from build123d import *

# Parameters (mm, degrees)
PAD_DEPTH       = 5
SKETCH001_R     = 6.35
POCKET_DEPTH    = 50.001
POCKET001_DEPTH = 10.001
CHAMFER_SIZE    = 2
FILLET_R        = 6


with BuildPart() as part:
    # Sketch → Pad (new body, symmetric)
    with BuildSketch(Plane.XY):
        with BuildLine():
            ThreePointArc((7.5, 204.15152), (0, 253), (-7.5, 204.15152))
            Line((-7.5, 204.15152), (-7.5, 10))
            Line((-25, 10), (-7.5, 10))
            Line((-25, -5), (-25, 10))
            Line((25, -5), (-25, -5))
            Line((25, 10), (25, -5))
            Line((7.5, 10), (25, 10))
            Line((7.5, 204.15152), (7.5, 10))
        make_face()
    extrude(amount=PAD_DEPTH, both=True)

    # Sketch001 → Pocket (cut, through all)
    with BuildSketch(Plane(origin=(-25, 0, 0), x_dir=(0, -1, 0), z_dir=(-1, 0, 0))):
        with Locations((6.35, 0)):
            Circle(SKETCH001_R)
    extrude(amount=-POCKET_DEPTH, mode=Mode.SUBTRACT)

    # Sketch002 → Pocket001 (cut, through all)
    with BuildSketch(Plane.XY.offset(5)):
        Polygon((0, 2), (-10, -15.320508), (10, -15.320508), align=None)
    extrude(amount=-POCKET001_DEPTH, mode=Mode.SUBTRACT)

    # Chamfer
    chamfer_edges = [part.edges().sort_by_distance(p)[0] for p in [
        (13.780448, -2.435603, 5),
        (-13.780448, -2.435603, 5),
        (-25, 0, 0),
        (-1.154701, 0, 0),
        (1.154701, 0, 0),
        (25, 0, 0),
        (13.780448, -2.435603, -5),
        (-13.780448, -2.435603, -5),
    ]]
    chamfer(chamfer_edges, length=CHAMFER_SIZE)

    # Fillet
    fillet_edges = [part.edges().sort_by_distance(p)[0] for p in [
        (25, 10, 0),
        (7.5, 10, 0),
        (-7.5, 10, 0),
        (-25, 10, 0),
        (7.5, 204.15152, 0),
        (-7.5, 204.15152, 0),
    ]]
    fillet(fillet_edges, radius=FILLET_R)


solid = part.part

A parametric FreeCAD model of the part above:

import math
import FreeCAD as App
import Part
import Sketcher
from FreeCAD import Vector
Q = App.Units.Quantity


def edges_at(feature, points):
    """Names of the edges that pass closest to the given points."""
    edges = feature.Shape.Edges
    near = lambda p: min(range(len(edges)), key=lambda i: edges[i].distToShape(Part.Vertex(*p))[0])
    return sorted({f"Edge{near(p) + 1}" for p in points})

doc = App.newDocument("Part")
params = doc.addObject("Spreadsheet::Sheet", "Params")
for row, (alias, value) in enumerate([
    ("sketch1_radius", "25 mm"),
    ("sketch1_width", "50 mm"),
    ("sketch1_height", "15 mm"),
    ("sketch1_width2", "17.5 mm"),
    ("pad1_length", "10 mm"),
    ("sketch2_diameter", "12.7 mm"),
    ("sketch3_width", "20 mm"),
    ("chamfer_size", "2 mm"),
    ("fillet_radius", "6 mm"),
], start=1):
    params.set(f"A{row}", alias)
    params.set(f"B{row}", "=" + value)
    params.setAlias(f"B{row}", alias)

body = doc.addObject("PartDesign::Body", "Body")

# Sketch on XY plane
sketch1 = body.newObject("Sketcher::SketchObject", "Sketch")
sketch1.AttachmentSupport = (doc.getObject("XY_Plane"), [""])
sketch1.MapMode = "FlatFace"
sketch1.addGeometry([
    Part.ArcOfCircle(Part.Circle(Vector(0, 228, 0), Vector(0, 0, 1), 25), math.radians(-72.542397), math.radians(252.542397)),  # 0
    Part.LineSegment(Vector(-7.5, 204.15152, 0), Vector(-7.5, 10, 0)),  # 1
    Part.LineSegment(Vector(-7.5, 10, 0), Vector(-25, 10, 0)),  # 2
    Part.LineSegment(Vector(-25, 10, 0), Vector(-25, -5, 0)),  # 3
    Part.LineSegment(Vector(-25, -5, 0), Vector(25, -5, 0)),  # 4
    Part.LineSegment(Vector(25, -5, 0), Vector(25, 10, 0)),  # 5
    Part.LineSegment(Vector(25, 10, 0), Vector(7.5, 10, 0)),  # 6
    Part.LineSegment(Vector(7.5, 10, 0), Vector(7.5, 204.15152, 0)),  # 7
], False)
sketch1.addConstraint([
    Sketcher.Constraint("Coincident", 0, 2, 1, 1),
    Sketcher.Constraint("Coincident", 1, 2, 2, 1),
    Sketcher.Constraint("Coincident", 2, 2, 3, 1),
    Sketcher.Constraint("Coincident", 3, 2, 4, 1),
    Sketcher.Constraint("Coincident", 4, 2, 5, 1),
    Sketcher.Constraint("Coincident", 5, 2, 6, 1),
    Sketcher.Constraint("Coincident", 6, 2, 7, 1),
    Sketcher.Constraint("Coincident", 7, 2, 0, 1),
    Sketcher.Constraint("Vertical", 1),
    Sketcher.Constraint("Horizontal", 2),
    Sketcher.Constraint("Vertical", 3),
    Sketcher.Constraint("Horizontal", 4),
    Sketcher.Constraint("Vertical", 5),
    Sketcher.Constraint("Horizontal", 6),
    Sketcher.Constraint("Vertical", 7),
    Sketcher.Constraint("Symmetric", 2, 2, 5, 2, -2),
    Sketcher.Constraint("Symmetric", 0, 2, 7, 2, -2),
    Sketcher.Constraint("Radius", 0, Q("25 mm")),
    Sketcher.Constraint("DistanceX", 4, 1, 4, 2, Q("50 mm")),
    Sketcher.Constraint("DistanceY", 3, 2, 3, 1, Q("15 mm")),
    Sketcher.Constraint("DistanceX", 2, 2, 2, 1, Q("17.5 mm")),
    Sketcher.Constraint("DistanceY", -1, 1, 0, 3, Q("228 mm")),
    Sketcher.Constraint("DistanceY", -1, 1, 1, 2, Q("10 mm")),
])
sketch1.setExpression("Constraints[17]", "Params.sketch1_radius")
sketch1.setExpression("Constraints[18]", "Params.sketch1_width")
sketch1.setExpression("Constraints[19]", "Params.sketch1_height")
sketch1.setExpression("Constraints[20]", "Params.sketch1_width2")
pad1 = body.newObject("PartDesign::Pad", "Pad")
pad1.Profile = sketch1
pad1.setExpression("Length", "Params.pad1_length")
pad1.Midplane = True

# Sketch on YZ plane
sketch2 = body.newObject("Sketcher::SketchObject", "Sketch001")
sketch2.AttachmentSupport = (doc.getObject("YZ_Plane"), [""])
sketch2.MapMode = "FlatFace"
sketch2.AttachmentOffset = App.Placement(Vector(0, 0, -25), App.Rotation())
sketch2.addGeometry(Part.Circle(Vector(-6.35, 0, 0), Vector(0, 0, 1), 6.35), False)
sketch2.addConstraint([
    Sketcher.Constraint("PointOnObject", 0, 3, -1),
    Sketcher.Constraint("Diameter", 0, Q("12.7 mm")),
    Sketcher.Constraint("DistanceX", 0, 3, -1, 1, Q("6.35 mm")),
])
sketch2.setExpression("Constraints[1]", "Params.sketch2_diameter")
pocket1 = body.newObject("PartDesign::Pocket", "Pocket")
pocket1.Profile = sketch2
pocket1.Type = "ThroughAll"
pocket1.Reversed = True

# Sketch on XY plane
sketch3 = body.newObject("Sketcher::SketchObject", "Sketch002")
sketch3.AttachmentSupport = (doc.getObject("XY_Plane"), [""])
sketch3.MapMode = "FlatFace"
sketch3.AttachmentOffset = App.Placement(Vector(0, 0, 5), App.Rotation())
sketch3.addGeometry([
    Part.LineSegment(Vector(0, 2, 0), Vector(-10, -15.320508, 0)),
    Part.LineSegment(Vector(-10, -15.320508, 0), Vector(10, -15.320508, 0)),
    Part.LineSegment(Vector(10, -15.320508, 0), Vector(0, 2, 0)),
], False)
sketch3.addConstraint([
    Sketcher.Constraint("Coincident", 0, 2, 1, 1),
    Sketcher.Constraint("Coincident", 1, 2, 2, 1),
    Sketcher.Constraint("Coincident", 2, 2, 0, 1),
    Sketcher.Constraint("Horizontal", 1),
    Sketcher.Constraint("PointOnObject", 2, 2, -2),
    Sketcher.Constraint("Equal", 0, 2),
    Sketcher.Constraint("DistanceX", 1, 1, 1, 2, Q("20 mm")),
    Sketcher.Constraint("Angle", 0, Q("-120 deg")),
    Sketcher.Constraint("DistanceY", -1, 1, 2, 2, Q("2 mm")),
])
sketch3.setExpression("Constraints[6]", "Params.sketch3_width")
pocket2 = body.newObject("PartDesign::Pocket", "Pocket001")
pocket2.Profile = sketch3
pocket2.Type = "ThroughAll"
doc.recompute()

chamfer = body.newObject("PartDesign::Chamfer", "Chamfer")
chamfer.Base = (pocket2, edges_at(pocket2, [
    (13.78, -2.436, 5),
    (-13.78, -2.436, 5),
    (-25, 0, 0),
    (-1.155, 0, 0),
    (1.155, 0, 0),
    (25, 0, 0),
    (13.78, -2.436, -5),
    (-13.78, -2.436, -5),
]))
chamfer.setExpression("Size", "Params.chamfer_size")
doc.recompute()

fillet = body.newObject("PartDesign::Fillet", "Fillet")
fillet.Base = (chamfer, edges_at(chamfer, [
    (25, 10, 0),
    (7.5, 10, 0),
    (-7.5, 10, 0),
    (-25, 10, 0),
    (7.5, 204.152, 0),
    (-7.5, 204.152, 0),
]))
fillet.setExpression("Radius", "Params.fillet_radius")

doc.recompute()
